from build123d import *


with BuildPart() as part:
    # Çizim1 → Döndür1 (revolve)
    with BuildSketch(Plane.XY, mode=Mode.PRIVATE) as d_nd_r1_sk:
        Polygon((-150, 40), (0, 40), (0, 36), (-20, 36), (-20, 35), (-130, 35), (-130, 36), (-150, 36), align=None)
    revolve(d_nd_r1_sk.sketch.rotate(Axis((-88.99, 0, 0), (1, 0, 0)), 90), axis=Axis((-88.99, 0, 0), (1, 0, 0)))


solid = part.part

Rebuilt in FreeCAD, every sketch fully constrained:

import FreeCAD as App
import Part
import Sketcher
Q = App.Units.Quantity


def add_polygon(sketch, points):
    """Adds a closed chain of lines whose ends are joined by coincident constraints."""
    first, n = sketch.GeometryCount, len(points)
    for a, b in zip(points, points[1:] + points[:1]):
        sketch.addGeometry(Part.LineSegment(App.Vector(*a, 0), App.Vector(*b, 0)), False)
    for i in range(n):
        sketch.addConstraint(Sketcher.Constraint("Coincident", first + i, 2, first + (i + 1) % n, 1))

doc = App.newDocument("Part")
body = doc.addObject("PartDesign::Body", "Body")

# Sketch on XY plane
sketch1 = body.newObject("Sketcher::SketchObject", "Sketch")
sketch1.AttachmentSupport = (doc.getObject("XY_Plane"), [""])
sketch1.MapMode = "FlatFace"
add_polygon(sketch1, [(0, 40), (-150, 40), (-150, 36), (-130, 36), (-130, 35), (-20, 35), (-20, 36), (0, 36)])  # lines 0-7
sketch1.addConstraint([
    Sketcher.Constraint("Horizontal", 0),
    Sketcher.Constraint("Vertical", 1),
    Sketcher.Constraint("Horizontal", 2),
    Sketcher.Constraint("Vertical", 3),
    Sketcher.Constraint("Horizontal", 4),
    Sketcher.Constraint("Vertical", 5),
    Sketcher.Constraint("Horizontal", 6),
    Sketcher.Constraint("Vertical", 7),
    Sketcher.Constraint("PointOnObject", 6, 2, -2),
    Sketcher.Constraint("Horizontal", 2, 2, 5, 2),
    Sketcher.Constraint("Equal", 2, 6),
    Sketcher.Constraint("DistanceX", 0, 2, 0, 1, Q("150 mm")),
    Sketcher.Constraint("DistanceX", 2, 1, 2, 2, Q("20 mm")),
    Sketcher.Constraint("DistanceY", 1, 2, 1, 1, Q("4 mm")),
    Sketcher.Constraint("DistanceY", 3, 2, 3, 1, Q("1 mm")),
    Sketcher.Constraint("DistanceY", -1, 1, 0, 2, Q("40 mm")),
])
revolution = body.newObject("PartDesign::Revolution", "Revolution")
revolution.Profile = sketch1
revolution.ReferenceAxis = (sketch1, ["H_Axis"])
revolution.Angle = 360

doc.recompute()
